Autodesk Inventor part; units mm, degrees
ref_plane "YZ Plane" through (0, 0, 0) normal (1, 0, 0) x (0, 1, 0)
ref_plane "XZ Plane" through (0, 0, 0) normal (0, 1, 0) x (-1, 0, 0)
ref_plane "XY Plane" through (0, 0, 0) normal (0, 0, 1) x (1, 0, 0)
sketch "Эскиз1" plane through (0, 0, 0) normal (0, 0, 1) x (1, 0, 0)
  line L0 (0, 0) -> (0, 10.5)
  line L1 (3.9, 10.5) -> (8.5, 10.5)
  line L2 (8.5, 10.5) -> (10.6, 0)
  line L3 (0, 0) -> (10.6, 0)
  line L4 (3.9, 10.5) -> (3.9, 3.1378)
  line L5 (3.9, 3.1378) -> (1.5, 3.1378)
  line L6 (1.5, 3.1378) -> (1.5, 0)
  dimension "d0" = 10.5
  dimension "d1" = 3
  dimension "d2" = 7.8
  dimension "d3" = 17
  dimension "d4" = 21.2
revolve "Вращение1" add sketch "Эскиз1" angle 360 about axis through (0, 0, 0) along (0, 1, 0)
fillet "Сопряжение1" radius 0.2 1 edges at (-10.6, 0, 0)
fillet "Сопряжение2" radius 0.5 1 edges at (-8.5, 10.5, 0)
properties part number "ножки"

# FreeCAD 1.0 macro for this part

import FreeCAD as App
import Part
import Sketcher

V = App.Vector
Q = App.Units.Quantity


def edges_at(feature, points):
    """Names of the edges that pass closest to the given points."""
    edges = feature.Shape.Edges
    near = lambda p: min(range(len(edges)), key=lambda i: edges[i].distToShape(Part.Vertex(*p))[0])
    return sorted({f"Edge{near(p) + 1}" for p in points})


def add_polygon(sketch, points):
    """Adds a closed chain of lines whose ends are joined by coincident constraints."""
    first, n = sketch.GeometryCount, len(points)
    for a, b in zip(points, points[1:] + points[:1]):
        sketch.addGeometry(Part.LineSegment(App.Vector(*a, 0), App.Vector(*b, 0)), False)
    for i in range(n):
        sketch.addConstraint(Sketcher.Constraint("Coincident", first + i, 2, first + (i + 1) % n, 1))

doc = App.newDocument("Part")
body = doc.addObject("PartDesign::Body", "Body")

# Sketch on XY plane
sketch1 = body.newObject("Sketcher::SketchObject", "Sketch")
sketch1.AttachmentSupport = (doc.getObject("XY_Plane"), [""])
sketch1.MapMode = "FlatFace"
add_polygon(sketch1, [(8.5, 10.5), (3.9, 10.5), (3.9, 3.1378), (1.5, 3.1378), (1.5, 0), (10.6, 0)])  # lines 0-5
sketch1.addConstraint([
    Sketcher.Constraint("Horizontal", 0),
    Sketcher.Constraint("Vertical", 1),
    Sketcher.Constraint("Horizontal", 2),
    Sketcher.Constraint("Vertical", 3),
    Sketcher.Constraint("Horizontal", 4),
    Sketcher.Constraint("PointOnObject", 3, 2, -1),
    Sketcher.Constraint("DistanceY", -1, 1, 0, 2, Q("10.5 mm")),
    Sketcher.Constraint("DistanceX", 0, 2, 0, 1, Q("4.6 mm")),
    Sketcher.Constraint("DistanceX", 2, 2, 2, 1, Q("2.4 mm")),
    Sketcher.Constraint("DistanceX", 4, 1, 4, 2, Q("9.1 mm")),
    Sketcher.Constraint("DistanceX", -1, 1, 0, 2, Q("3.9 mm")),
    Sketcher.Constraint("DistanceY", 1, 2, 1, 1, Q("7.3622 mm")),
])
revolution = body.newObject("PartDesign::Revolution", "Revolution")
revolution.Profile = sketch1
revolution.ReferenceAxis = (sketch1, ["V_Axis"])
revolution.Angle = 360
doc.recompute()

fillet = body.newObject("PartDesign::Fillet", "Fillet")
fillet.Base = (revolution, edges_at(revolution, [(-10.6, 0, 0)]))
fillet.Radius = 0.2
doc.recompute()

fillet2 = body.newObject("PartDesign::Fillet", "Fillet001")
fillet2.Base = (fillet, edges_at(fillet, [(-8.5, 10.5, 0)]))
fillet2.Radius = 0.5

doc.recompute()
